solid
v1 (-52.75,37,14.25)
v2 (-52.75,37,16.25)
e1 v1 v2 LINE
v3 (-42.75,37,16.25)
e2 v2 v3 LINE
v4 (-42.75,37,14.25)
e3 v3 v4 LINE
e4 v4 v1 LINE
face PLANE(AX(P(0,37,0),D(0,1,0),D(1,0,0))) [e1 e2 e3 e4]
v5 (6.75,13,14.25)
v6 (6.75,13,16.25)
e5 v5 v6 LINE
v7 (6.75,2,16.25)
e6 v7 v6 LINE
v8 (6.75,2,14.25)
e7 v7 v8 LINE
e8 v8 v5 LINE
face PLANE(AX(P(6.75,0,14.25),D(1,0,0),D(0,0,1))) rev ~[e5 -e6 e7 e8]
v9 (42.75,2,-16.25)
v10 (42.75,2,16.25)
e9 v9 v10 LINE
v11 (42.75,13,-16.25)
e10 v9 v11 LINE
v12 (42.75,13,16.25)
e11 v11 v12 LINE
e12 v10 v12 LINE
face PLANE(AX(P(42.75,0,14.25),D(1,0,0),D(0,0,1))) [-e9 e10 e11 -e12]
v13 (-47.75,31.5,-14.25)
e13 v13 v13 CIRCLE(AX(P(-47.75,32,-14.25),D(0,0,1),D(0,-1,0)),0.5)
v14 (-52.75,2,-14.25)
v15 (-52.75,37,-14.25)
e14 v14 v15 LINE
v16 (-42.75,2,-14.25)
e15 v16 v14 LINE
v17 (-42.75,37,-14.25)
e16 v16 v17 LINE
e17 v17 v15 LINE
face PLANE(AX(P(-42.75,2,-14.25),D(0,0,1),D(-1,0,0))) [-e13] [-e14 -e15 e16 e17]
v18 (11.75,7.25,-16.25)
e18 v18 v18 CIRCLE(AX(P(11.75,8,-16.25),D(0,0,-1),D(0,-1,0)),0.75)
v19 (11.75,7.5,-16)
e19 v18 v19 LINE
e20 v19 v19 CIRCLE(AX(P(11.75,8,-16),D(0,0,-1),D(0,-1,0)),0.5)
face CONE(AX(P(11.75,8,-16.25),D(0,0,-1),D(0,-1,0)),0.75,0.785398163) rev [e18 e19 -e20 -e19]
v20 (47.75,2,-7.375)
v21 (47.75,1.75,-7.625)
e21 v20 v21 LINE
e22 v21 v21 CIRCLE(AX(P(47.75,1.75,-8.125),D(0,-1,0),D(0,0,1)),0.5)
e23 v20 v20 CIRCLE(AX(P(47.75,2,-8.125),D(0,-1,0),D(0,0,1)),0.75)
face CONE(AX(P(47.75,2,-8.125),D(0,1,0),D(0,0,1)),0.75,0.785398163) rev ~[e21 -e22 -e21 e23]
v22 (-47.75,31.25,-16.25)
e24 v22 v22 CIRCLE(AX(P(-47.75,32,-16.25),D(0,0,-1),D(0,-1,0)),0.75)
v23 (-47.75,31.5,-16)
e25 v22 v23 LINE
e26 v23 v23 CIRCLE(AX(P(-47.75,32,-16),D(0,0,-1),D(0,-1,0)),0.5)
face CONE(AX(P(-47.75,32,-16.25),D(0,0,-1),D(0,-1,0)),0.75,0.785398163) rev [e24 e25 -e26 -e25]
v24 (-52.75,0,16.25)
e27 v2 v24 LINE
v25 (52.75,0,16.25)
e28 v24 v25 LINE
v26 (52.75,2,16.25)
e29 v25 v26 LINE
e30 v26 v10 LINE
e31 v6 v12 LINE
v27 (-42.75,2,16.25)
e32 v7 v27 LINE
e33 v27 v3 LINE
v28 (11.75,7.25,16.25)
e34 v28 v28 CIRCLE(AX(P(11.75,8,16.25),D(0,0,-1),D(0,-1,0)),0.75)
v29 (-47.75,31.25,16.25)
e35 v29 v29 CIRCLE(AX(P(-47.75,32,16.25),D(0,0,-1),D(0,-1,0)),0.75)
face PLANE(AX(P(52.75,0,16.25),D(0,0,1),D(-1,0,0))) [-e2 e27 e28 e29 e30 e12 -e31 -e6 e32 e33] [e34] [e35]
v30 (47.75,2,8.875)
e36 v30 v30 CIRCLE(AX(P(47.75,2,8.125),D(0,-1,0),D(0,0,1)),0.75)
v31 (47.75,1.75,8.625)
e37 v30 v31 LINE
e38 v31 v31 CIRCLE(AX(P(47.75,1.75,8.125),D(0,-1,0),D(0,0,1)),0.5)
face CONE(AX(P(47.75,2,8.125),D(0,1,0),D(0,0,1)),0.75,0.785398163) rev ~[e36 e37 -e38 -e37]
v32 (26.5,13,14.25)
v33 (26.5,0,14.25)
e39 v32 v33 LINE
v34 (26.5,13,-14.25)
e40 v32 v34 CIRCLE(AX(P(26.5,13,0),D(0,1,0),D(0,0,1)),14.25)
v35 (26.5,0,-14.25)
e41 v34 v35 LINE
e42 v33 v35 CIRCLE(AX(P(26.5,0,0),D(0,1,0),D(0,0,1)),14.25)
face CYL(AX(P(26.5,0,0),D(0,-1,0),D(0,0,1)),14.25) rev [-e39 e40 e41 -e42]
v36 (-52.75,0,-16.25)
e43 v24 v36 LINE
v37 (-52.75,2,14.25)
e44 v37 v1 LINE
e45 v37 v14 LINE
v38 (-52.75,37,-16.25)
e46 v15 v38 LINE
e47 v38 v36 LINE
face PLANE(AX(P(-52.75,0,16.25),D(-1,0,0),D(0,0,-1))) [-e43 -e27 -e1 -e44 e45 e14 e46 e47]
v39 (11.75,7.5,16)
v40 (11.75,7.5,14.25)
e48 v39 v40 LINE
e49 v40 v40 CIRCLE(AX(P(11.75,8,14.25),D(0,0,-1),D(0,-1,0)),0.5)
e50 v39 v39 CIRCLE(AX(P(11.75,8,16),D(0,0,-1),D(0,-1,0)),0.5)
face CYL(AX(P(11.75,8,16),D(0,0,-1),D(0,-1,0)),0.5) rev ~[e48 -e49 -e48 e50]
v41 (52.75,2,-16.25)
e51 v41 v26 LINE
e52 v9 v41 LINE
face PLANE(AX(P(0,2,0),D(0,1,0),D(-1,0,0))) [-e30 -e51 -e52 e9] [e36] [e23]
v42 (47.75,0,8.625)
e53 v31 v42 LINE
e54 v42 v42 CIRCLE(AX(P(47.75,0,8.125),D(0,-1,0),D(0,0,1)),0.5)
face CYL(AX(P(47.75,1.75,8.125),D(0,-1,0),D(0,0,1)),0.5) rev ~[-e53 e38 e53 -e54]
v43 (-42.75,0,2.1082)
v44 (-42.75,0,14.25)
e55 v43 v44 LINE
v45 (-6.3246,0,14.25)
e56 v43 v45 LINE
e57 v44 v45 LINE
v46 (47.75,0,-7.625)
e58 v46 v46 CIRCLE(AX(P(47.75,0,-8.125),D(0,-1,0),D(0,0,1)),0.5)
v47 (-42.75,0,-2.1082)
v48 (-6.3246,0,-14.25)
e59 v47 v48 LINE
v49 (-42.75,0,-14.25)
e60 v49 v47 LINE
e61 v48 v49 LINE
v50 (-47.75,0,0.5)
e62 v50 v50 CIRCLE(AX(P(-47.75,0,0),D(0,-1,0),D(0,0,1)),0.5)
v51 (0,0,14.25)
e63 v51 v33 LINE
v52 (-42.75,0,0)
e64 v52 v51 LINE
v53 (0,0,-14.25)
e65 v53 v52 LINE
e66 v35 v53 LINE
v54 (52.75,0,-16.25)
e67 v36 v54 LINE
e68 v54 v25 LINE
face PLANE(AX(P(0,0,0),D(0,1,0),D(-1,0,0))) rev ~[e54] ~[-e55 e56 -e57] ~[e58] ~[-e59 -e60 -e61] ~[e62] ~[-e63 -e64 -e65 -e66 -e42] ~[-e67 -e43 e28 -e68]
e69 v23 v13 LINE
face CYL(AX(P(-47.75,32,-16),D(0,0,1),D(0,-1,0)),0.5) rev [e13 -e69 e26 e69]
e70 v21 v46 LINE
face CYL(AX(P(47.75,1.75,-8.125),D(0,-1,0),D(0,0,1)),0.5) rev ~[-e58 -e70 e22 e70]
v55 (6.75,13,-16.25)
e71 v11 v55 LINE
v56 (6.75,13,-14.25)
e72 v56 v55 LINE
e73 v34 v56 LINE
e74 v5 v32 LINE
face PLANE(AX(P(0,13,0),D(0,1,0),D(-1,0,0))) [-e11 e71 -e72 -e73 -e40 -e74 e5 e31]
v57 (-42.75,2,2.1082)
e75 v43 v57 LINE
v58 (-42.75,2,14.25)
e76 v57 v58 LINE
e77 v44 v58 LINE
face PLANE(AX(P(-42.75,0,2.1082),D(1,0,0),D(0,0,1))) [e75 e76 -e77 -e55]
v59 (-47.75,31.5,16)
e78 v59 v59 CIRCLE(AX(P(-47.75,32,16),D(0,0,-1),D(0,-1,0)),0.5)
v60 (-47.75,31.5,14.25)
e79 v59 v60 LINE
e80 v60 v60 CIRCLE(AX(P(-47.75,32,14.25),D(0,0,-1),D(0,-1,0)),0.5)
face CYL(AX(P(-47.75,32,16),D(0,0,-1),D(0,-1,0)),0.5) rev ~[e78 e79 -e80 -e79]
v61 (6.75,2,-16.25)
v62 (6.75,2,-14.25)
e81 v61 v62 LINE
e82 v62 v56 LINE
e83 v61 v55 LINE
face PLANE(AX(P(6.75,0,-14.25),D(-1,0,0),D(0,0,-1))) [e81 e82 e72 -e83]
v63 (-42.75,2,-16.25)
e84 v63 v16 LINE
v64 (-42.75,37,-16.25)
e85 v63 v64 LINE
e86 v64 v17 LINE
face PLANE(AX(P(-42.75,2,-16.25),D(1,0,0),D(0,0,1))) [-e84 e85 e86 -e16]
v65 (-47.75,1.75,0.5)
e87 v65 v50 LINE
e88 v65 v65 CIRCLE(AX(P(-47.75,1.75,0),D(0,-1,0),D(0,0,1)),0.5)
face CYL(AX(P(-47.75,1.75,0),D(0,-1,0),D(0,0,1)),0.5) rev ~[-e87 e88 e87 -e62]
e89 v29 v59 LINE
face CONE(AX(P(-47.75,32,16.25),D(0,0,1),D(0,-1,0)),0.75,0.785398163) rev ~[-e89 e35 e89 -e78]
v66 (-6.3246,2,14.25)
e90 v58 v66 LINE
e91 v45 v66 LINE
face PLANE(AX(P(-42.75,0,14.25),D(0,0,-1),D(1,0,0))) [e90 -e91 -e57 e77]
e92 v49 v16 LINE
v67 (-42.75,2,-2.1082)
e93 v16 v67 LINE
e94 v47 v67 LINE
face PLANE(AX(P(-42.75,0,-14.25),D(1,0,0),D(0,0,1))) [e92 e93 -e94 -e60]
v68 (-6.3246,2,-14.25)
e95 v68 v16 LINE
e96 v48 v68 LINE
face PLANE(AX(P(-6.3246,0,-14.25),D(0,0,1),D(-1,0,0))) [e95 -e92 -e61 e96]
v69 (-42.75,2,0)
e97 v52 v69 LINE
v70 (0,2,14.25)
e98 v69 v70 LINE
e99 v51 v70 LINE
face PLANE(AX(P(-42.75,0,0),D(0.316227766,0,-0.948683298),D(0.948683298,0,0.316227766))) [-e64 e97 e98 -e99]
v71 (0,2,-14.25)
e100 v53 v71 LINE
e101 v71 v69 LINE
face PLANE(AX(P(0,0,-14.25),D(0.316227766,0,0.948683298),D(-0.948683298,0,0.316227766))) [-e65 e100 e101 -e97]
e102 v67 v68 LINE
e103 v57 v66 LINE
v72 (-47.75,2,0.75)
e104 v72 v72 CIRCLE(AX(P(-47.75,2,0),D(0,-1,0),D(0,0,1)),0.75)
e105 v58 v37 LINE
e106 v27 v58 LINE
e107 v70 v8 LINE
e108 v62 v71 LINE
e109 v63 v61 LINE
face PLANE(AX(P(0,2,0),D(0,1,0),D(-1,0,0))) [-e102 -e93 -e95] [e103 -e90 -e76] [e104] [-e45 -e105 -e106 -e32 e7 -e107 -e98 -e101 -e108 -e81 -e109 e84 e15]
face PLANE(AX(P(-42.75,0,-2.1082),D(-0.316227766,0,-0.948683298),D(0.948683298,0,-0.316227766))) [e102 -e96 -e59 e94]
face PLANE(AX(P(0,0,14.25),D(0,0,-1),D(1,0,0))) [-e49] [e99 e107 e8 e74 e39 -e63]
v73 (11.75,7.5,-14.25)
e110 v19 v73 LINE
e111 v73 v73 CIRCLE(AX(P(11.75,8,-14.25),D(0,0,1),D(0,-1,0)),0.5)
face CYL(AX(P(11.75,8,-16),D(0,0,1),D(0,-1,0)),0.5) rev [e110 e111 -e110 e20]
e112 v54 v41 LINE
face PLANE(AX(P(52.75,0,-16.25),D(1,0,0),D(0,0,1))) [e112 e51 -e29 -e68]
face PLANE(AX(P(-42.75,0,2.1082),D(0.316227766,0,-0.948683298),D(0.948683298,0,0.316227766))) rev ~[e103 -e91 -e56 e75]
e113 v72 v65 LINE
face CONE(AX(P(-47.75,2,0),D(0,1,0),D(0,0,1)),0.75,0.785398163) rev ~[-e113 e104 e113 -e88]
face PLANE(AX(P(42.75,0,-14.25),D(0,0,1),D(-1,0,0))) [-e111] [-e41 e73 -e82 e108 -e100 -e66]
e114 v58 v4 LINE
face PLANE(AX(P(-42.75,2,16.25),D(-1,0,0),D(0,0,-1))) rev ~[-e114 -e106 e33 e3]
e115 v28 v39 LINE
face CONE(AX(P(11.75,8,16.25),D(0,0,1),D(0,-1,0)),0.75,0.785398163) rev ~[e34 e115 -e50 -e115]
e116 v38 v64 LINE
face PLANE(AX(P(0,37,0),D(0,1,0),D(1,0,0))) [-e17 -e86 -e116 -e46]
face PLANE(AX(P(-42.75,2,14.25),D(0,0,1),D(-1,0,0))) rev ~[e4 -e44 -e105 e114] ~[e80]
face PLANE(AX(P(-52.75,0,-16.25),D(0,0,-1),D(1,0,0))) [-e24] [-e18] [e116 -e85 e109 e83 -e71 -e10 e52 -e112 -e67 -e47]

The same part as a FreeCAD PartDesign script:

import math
import FreeCAD as App
import Part
import Sketcher
from FreeCAD import Vector
Q = App.Units.Quantity

doc = App.newDocument("Part")
body = doc.addObject("PartDesign::Body", "Body")

sketch1 = doc.addObject("Sketcher::SketchObject", "Sketch")
body.addObject(sketch1)
sketch1.AttachmentSupport = (doc.XZ_Plane, [""])
sketch1.MapMode = "FlatFace"
sketch1.addGeometry(Part.LineSegment(Vector(-52.75, 16.25, 0), Vector(52.75, 16.25, 0)), False)
sketch1.addGeometry(Part.LineSegment(Vector(52.75, 16.25, 0), Vector(52.75, -16.25, 0)), False)
sketch1.addGeometry(Part.LineSegment(Vector(52.75, -16.25, 0), Vector(-52.75, -16.25, 0)), False)
sketch1.addGeometry(Part.LineSegment(Vector(-52.75, -16.25, 0), Vector(-52.75, 16.25, 0)), False)
sketch1.addGeometry(Part.LineSegment(Vector(-42.75, -2.1082, 0), Vector(-42.75, -14.25, 0)), False)
sketch1.addGeometry(Part.LineSegment(Vector(-42.75, -14.25, 0), Vector(-6.3246, -14.25, 0)), False)
sketch1.addGeometry(Part.LineSegment(Vector(-6.3246, -14.25, 0), Vector(-42.75, -2.1082, 0)), False)
sketch1.addGeometry(Part.LineSegment(Vector(0, -14.25, 0), Vector(42.75, -14.25, 0)), False)
sketch1.addGeometry(Part.LineSegment(Vector(42.75, -14.25, 0), Vector(42.75, 14.25, 0)), False)
sketch1.addGeometry(Part.LineSegment(Vector(42.75, 14.25, 0), Vector(0, 14.25, 0)), False)
sketch1.addGeometry(Part.LineSegment(Vector(0, 14.25, 0), Vector(-42.75, 0, 0)), False)
sketch1.addGeometry(Part.LineSegment(Vector(-42.75, 0, 0), Vector(0, -14.25, 0)), False)
sketch1.addGeometry(Part.LineSegment(Vector(-6.3246, 14.25, 0), Vector(-42.75, 14.25, 0)), False)
sketch1.addGeometry(Part.LineSegment(Vector(-42.75, 14.25, 0), Vector(-42.75, 2.1082, 0)), False)
sketch1.addGeometry(Part.LineSegment(Vector(-42.75, 2.1082, 0), Vector(-6.3246, 14.25, 0)), False)
sketch1.addConstraint(Sketcher.Constraint("Coincident", 0, 2, 1, 1))
sketch1.addConstraint(Sketcher.Constraint("Coincident", 1, 2, 2, 1))
sketch1.addConstraint(Sketcher.Constraint("Coincident", 2, 2, 3, 1))
sketch1.addConstraint(Sketcher.Constraint("Coincident", 3, 2, 0, 1))
sketch1.addConstraint(Sketcher.Constraint("Coincident", 4, 2, 5, 1))
sketch1.addConstraint(Sketcher.Constraint("Coincident", 5, 2, 6, 1))
sketch1.addConstraint(Sketcher.Constraint("Coincident", 6, 2, 4, 1))
sketch1.addConstraint(Sketcher.Constraint("Coincident", 7, 2, 8, 1))
sketch1.addConstraint(Sketcher.Constraint("Coincident", 8, 2, 9, 1))
sketch1.addConstraint(Sketcher.Constraint("Coincident", 9, 2, 10, 1))
sketch1.addConstraint(Sketcher.Constraint("Coincident", 10, 2, 11, 1))
sketch1.addConstraint(Sketcher.Constraint("Coincident", 11, 2, 7, 1))
sketch1.addConstraint(Sketcher.Constraint("Coincident", 12, 2, 13, 1))
sketch1.addConstraint(Sketcher.Constraint("Coincident", 13, 2, 14, 1))
sketch1.addConstraint(Sketcher.Constraint("Coincident", 14, 2, 12, 1))
sketch1.addConstraint(Sketcher.Constraint("Horizontal", 0))
sketch1.addConstraint(Sketcher.Constraint("Vertical", 1))
sketch1.addConstraint(Sketcher.Constraint("Horizontal", 2))
sketch1.addConstraint(Sketcher.Constraint("Vertical", 3))
sketch1.addConstraint(Sketcher.Constraint("Vertical", 4))
sketch1.addConstraint(Sketcher.Constraint("Horizontal", 5))
sketch1.addConstraint(Sketcher.Constraint("Horizontal", 7))
sketch1.addConstraint(Sketcher.Constraint("Vertical", 8))
sketch1.addConstraint(Sketcher.Constraint("Horizontal", 9))
sketch1.addConstraint(Sketcher.Constraint("Horizontal", 12))
sketch1.addConstraint(Sketcher.Constraint("Vertical", 13))
sketch1.addConstraint(Sketcher.Constraint("Symmetric", 0, 2, 2, 2, -1, 1))
sketch1.addConstraint(Sketcher.Constraint("Symmetric", 4, 2, 8, 2, -1, 1))
sketch1.addConstraint(Sketcher.Constraint("Symmetric", 9, 2, 11, 2, -1, 1))
sketch1.addConstraint(Sketcher.Constraint("Symmetric", 7, 2, 12, 2, -1, 1))
sketch1.addConstraint(Sketcher.Constraint("PointOnObject", 9, 2, -2))
sketch1.addConstraint(Sketcher.Constraint("PointOnObject", 10, 2, -1))
sketch1.addConstraint(Sketcher.Constraint("Parallel", 6, 11))
sketch1.addConstraint(Sketcher.Constraint("Parallel", 10, 14))
sketch1.addConstraint(Sketcher.Constraint("Vertical", 6, 2, 10, 2))
sketch1.addConstraint(Sketcher.Constraint("Vertical", 5, 2, 14, 2))
sketch1.addConstraint(Sketcher.Constraint("DistanceX", 0, 1, 0, 2, Q("105.5 mm")))
sketch1.addConstraint(Sketcher.Constraint("DistanceY", 8, 1, 8, 2, Q("28.5 mm")))
sketch1.addConstraint(Sketcher.Constraint("DistanceX", 2, 2, 4, 2, Q("10 mm")))
sketch1.addConstraint(Sketcher.Constraint("DistanceY", 2, 2, 4, 2, Q("2 mm")))
sketch1.addConstraint(Sketcher.Constraint("DistanceX", 5, 1, 5, 2, Q("36.4254 mm")))
pad1 = doc.addObject("PartDesign::Pad", "Pad")
body.addObject(pad1)
pad1.Profile = sketch1
pad1.Length = 2
pad1.Reversed = True

sketch2 = doc.addObject("Sketcher::SketchObject", "Sketch001")
body.addObject(sketch2)
sketch2.AttachmentSupport = (doc.XZ_Plane, [""])
sketch2.MapMode = "FlatFace"
sketch2.addGeometry(Part.LineSegment(Vector(42.75, 16.25, 0), Vector(42.75, -16.25, 0)), False)
sketch2.addGeometry(Part.LineSegment(Vector(42.75, -16.25, 0), Vector(6.75, -16.25, 0)), False)
sketch2.addGeometry(Part.LineSegment(Vector(6.75, -16.25, 0), Vector(6.75, -14.25, 0)), False)
sketch2.addGeometry(Part.LineSegment(Vector(6.75, -14.25, 0), Vector(26.5, -14.25, 0)), False)
sketch2.addGeometry(Part.ArcOfCircle(Part.Circle(Vector(26.5, 0, 0), Vector(0, 0, 1), 14.25), math.radians(-90), math.radians(90)), False)
sketch2.addGeometry(Part.LineSegment(Vector(26.5, 14.25, 0), Vector(6.75, 14.25, 0)), False)
sketch2.addGeometry(Part.LineSegment(Vector(6.75, 14.25, 0), Vector(6.75, 16.25, 0)), False)
sketch2.addGeometry(Part.LineSegment(Vector(6.75, 16.25, 0), Vector(42.75, 16.25, 0)), False)
sketch2.addConstraint(Sketcher.Constraint("Coincident", 0, 2, 1, 1))
sketch2.addConstraint(Sketcher.Constraint("Coincident", 1, 2, 2, 1))
sketch2.addConstraint(Sketcher.Constraint("Coincident", 2, 2, 3, 1))
sketch2.addConstraint(Sketcher.Constraint("Tangent", 3, 2, 4, 1))
sketch2.addConstraint(Sketcher.Constraint("Tangent", 4, 2, 5, 1))
sketch2.addConstraint(Sketcher.Constraint("Coincident", 5, 2, 6, 1))
sketch2.addConstraint(Sketcher.Constraint("Coincident", 6, 2, 7, 1))
sketch2.addConstraint(Sketcher.Constraint("Coincident", 7, 2, 0, 1))
sketch2.addConstraint(Sketcher.Constraint("Vertical", 0))
sketch2.addConstraint(Sketcher.Constraint("Horizontal", 1))
sketch2.addConstraint(Sketcher.Constraint("Vertical", 2))
sketch2.addConstraint(Sketcher.Constraint("Horizontal", 3))
sketch2.addConstraint(Sketcher.Constraint("Horizontal", 5))
sketch2.addConstraint(Sketcher.Constraint("Vertical", 6))
sketch2.addConstraint(Sketcher.Constraint("Horizontal", 7))
sketch2.addConstraint(Sketcher.Constraint("Symmetric", 2, 2, 5, 2, -1))
sketch2.addConstraint(Sketcher.Constraint("Equal", 2, 6))
sketch2.addConstraint(Sketcher.Constraint("DistanceY", 2, 1, 2, 2, Q("2 mm")))
sketch2.addConstraint(Sketcher.Constraint("DistanceX", 1, 2, 1, 1, Q("36 mm")))
sketch2.addConstraint(Sketcher.Constraint("Radius", 4, Q("14.25 mm")))
sketch2.addConstraint(Sketcher.Constraint("DistanceX", 3, 1, 3, 2, Q("19.75 mm")))
sketch2.addConstraint(Sketcher.Constraint("DistanceX", -1, 1, 4, 3, Q("26.5 mm")))
pad2 = doc.addObject("PartDesign::Pad", "Pad001")
body.addObject(pad2)
pad2.Profile = sketch2
pad2.Length = 13
pad2.Reversed = True

sketch3 = doc.addObject("Sketcher::SketchObject", "Sketch002")
body.addObject(sketch3)
sketch3.AttachmentSupport = (doc.XZ_Plane, [""])
sketch3.MapMode = "FlatFace"
sketch3.AttachmentOffset = App.Placement(Vector(0, 0, -2), App.Rotation())
sketch3.addGeometry(Part.LineSegment(Vector(-52.75, -14.25, 0), Vector(-42.75, -14.25, 0)), False)
sketch3.addGeometry(Part.LineSegment(Vector(-42.75, -14.25, 0), Vector(-42.75, -16.25, 0)), False)
sketch3.addGeometry(Part.LineSegment(Vector(-42.75, -16.25, 0), Vector(-52.75, -16.25, 0)), False)
sketch3.addGeometry(Part.LineSegment(Vector(-52.75, -16.25, 0), Vector(-52.75, -14.25, 0)), False)
sketch3.addGeometry(Part.LineSegment(Vector(-52.75, 14.25, 0), Vector(-52.75, 16.25, 0)), False)
sketch3.addGeometry(Part.LineSegment(Vector(-52.75, 16.25, 0), Vector(-42.75, 16.25, 0)), False)
sketch3.addGeometry(Part.LineSegment(Vector(-42.75, 16.25, 0), Vector(-42.75, 14.25, 0)), False)
sketch3.addGeometry(Part.LineSegment(Vector(-42.75, 14.25, 0), Vector(-52.75, 14.25, 0)), False)
sketch3.addConstraint(Sketcher.Constraint("Coincident", 0, 2, 1, 1))
sketch3.addConstraint(Sketcher.Constraint("Coincident", 1, 2, 2, 1))
sketch3.addConstraint(Sketcher.Constraint("Coincident", 2, 2, 3, 1))
sketch3.addConstraint(Sketcher.Constraint("Coincident", 3, 2, 0, 1))
sketch3.addConstraint(Sketcher.Constraint("Coincident", 4, 2, 5, 1))
sketch3.addConstraint(Sketcher.Constraint("Coincident", 5, 2, 6, 1))
sketch3.addConstraint(Sketcher.Constraint("Coincident", 6, 2, 7, 1))
sketch3.addConstraint(Sketcher.Constraint("Coincident", 7, 2, 4, 1))
sketch3.addConstraint(Sketcher.Constraint("Horizontal", 0))
sketch3.addConstraint(Sketcher.Constraint("Vertical", 1))
sketch3.addConstraint(Sketcher.Constraint("Horizontal", 2))
sketch3.addConstraint(Sketcher.Constraint("Vertical", 3))
sketch3.addConstraint(Sketcher.Constraint("Vertical", 4))
sketch3.addConstraint(Sketcher.Constraint("Horizontal", 5))
sketch3.addConstraint(Sketcher.Constraint("Vertical", 6))
sketch3.addConstraint(Sketcher.Constraint("Horizontal", 7))
sketch3.addConstraint(Sketcher.Constraint("Symmetric", 2, 2, 4, 2, -1))
sketch3.addConstraint(Sketcher.Constraint("Symmetric", 0, 2, 6, 2, -1))
sketch3.addConstraint(Sketcher.Constraint("DistanceX", 0, 1, 0, 2, Q("10 mm")))
sketch3.addConstraint(Sketcher.Constraint("DistanceY", 1, 2, 1, 1, Q("2 mm")))
sketch3.addConstraint(Sketcher.Constraint("DistanceY", 3, 2, 4, 2, Q("30.5 mm")))
sketch3.addConstraint(Sketcher.Constraint("DistanceX", 0, 2, -1, 1, Q("42.75 mm")))
pad3 = doc.addObject("PartDesign::Pad", "Pad002")
body.addObject(pad3)
pad3.Profile = sketch3
pad3.Length = 35
pad3.Reversed = True

sketch4 = doc.addObject("Sketcher::SketchObject", "Sketch003")
body.addObject(sketch4)
sketch4.AttachmentSupport = (doc.XY_Plane, [""])
sketch4.MapMode = "FlatFace"
sketch4.AttachmentOffset = App.Placement(Vector(0, 0, 16.25), App.Rotation())
sketch4.addGeometry(Part.Circle(Vector(-47.75, 32, 0), Vector(0, 0, 1), 0.5), False)
sketch4.addGeometry(Part.Circle(Vector(11.75, 8, 0), Vector(0, 0, 1), 0.5), False)
sketch4.addConstraint(Sketcher.Constraint("Equal", 0, 1))
sketch4.addConstraint(Sketcher.Constraint("Diameter", 0, Q("1 mm")))
sketch4.addConstraint(Sketcher.Constraint("DistanceY", -1, 1, 0, 3, Q("32 mm")))
sketch4.addConstraint(Sketcher.Constraint("DistanceY", -1, 1, 1, 3, Q("8 mm")))
sketch4.addConstraint(Sketcher.Constraint("DistanceX", 0, 3, 1, 3, Q("59.5 mm")))
sketch4.addConstraint(Sketcher.Constraint("DistanceX", 0, 3, -1, 1, Q("47.75 mm")))
doc.recompute()
hole = doc.addObject("PartDesign::Hole", "Hole")
body.addObject(hole)
hole.Profile = sketch4
hole.ThreadType = "None"
hole.Diameter = 1
hole.DepthType = "Dimension"
hole.Depth = 16.25
hole.DrillPoint = "Flat"
hole.HoleCutType = "Countersink"
hole.HoleCutDiameter = 1.5
hole.HoleCutCountersinkAngle = 90
doc.recompute()

mirrored = doc.addObject("PartDesign::Mirrored", "Mirrored")
body.addObject(mirrored)
mirrored.Originals = [hole]
mirrored.MirrorPlane = (doc.XY_Plane, [""])
body.Tip = mirrored

sketch5 = doc.addObject("Sketcher::SketchObject", "Sketch004")
body.addObject(sketch5)
sketch5.AttachmentSupport = (doc.XZ_Plane, [""])
sketch5.MapMode = "FlatFace"
sketch5.AttachmentOffset = App.Placement(Vector(0, 0, -2), App.Rotation())
sketch5.addGeometry(Part.Circle(Vector(-47.75, 0, 0), Vector(0, 0, 1), 0.5), False)
sketch5.addGeometry(Part.Circle(Vector(47.75, -8.125, 0), Vector(0, 0, 1), 0.5), False)
sketch5.addGeometry(Part.Circle(Vector(47.75, 8.125, 0), Vector(0, 0, 1), 0.5), False)
sketch5.addConstraint(Sketcher.Constraint("Equal", 0, 1))
sketch5.addConstraint(Sketcher.Constraint("Equal", 1, 2))
sketch5.addConstraint(Sketcher.Constraint("Symmetric", 1, 3, 2, 3, -1))
sketch5.addConstraint(Sketcher.Constraint("PointOnObject", 0, 3, -1))
sketch5.addConstraint(Sketcher.Constraint("Diameter", 0, Q("1 mm")))
sketch5.addConstraint(Sketcher.Constraint("DistanceX", 0, 3, 1, 3, Q("95.5 mm")))
sketch5.addConstraint(Sketcher.Constraint("DistanceX", 0, 3, -1, 1, Q("47.75 mm")))
sketch5.addConstraint(Sketcher.Constraint("DistanceY", 1, 3, 2, 3, Q("16.25 mm")))
doc.recompute()
hole2 = doc.addObject("PartDesign::Hole", "Hole001")
body.addObject(hole2)
hole2.Profile = sketch5
hole2.ThreadType = "None"
hole2.Diameter = 1
hole2.DepthType = "ThroughAll"
hole2.HoleCutType = "Countersink"
hole2.HoleCutDiameter = 1.5
hole2.HoleCutCountersinkAngle = 90
hole2.Reversed = True

doc.recompute()
